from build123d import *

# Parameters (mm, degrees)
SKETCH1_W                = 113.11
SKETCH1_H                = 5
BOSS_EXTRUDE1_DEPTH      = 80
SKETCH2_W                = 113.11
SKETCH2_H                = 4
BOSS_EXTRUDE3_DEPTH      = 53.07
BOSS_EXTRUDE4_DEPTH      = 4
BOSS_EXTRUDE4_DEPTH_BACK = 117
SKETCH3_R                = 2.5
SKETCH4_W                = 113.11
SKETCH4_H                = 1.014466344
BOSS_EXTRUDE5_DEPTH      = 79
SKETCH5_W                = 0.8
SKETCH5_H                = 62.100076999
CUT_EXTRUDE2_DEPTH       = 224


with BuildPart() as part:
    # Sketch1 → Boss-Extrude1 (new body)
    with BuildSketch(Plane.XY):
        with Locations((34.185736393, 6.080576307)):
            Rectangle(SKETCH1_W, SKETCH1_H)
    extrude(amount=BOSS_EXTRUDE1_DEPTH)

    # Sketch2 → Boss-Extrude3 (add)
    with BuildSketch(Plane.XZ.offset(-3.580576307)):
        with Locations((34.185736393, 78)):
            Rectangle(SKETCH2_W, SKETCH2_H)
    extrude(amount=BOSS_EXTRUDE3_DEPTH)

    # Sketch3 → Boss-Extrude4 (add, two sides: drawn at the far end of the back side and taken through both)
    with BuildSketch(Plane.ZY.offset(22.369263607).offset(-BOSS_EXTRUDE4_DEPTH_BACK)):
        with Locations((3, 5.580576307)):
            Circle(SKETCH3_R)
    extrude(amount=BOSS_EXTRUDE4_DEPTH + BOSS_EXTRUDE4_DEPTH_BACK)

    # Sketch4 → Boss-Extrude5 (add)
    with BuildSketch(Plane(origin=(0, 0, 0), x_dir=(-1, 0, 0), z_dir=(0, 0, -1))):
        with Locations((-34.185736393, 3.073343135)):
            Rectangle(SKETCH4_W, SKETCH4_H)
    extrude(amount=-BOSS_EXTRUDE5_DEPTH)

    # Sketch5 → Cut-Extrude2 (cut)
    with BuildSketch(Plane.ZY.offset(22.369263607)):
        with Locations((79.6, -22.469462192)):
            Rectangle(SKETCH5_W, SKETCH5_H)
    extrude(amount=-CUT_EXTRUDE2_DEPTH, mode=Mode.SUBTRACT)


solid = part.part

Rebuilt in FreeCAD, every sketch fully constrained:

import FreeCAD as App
import Part
import Sketcher

V = App.Vector
Q = App.Units.Quantity


def add_polygon(sketch, points):
    """Adds a closed chain of lines whose ends are joined by coincident constraints."""
    first, n = sketch.GeometryCount, len(points)
    for a, b in zip(points, points[1:] + points[:1]):
        sketch.addGeometry(Part.LineSegment(App.Vector(*a, 0), App.Vector(*b, 0)), False)
    for i in range(n):
        sketch.addConstraint(Sketcher.Constraint("Coincident", first + i, 2, first + (i + 1) % n, 1))

doc = App.newDocument("Part")
params = doc.addObject("Spreadsheet::Sheet", "Params")
for row, (alias, value) in enumerate([
    ("sketch1_height", "5 mm"),
    ("sketch1_width", "113.11 mm"),
    ("pad1_length", "80 mm"),
    ("sketch2_height", "4 mm"),
    ("sketch2_width", "113.11 mm"),
    ("pad2_length", "53.07 mm"),
    ("sketch3_diameter", "5 mm"),
    ("pad3_length", "4 mm"),
    ("pad3_length2", "117 mm"),
    ("sketch4_width", "113.11 mm"),
    ("pad4_length", "79 mm"),
    ("sketch5_height", "0.8 mm"),
    ("pocket1_length", "224 mm"),
], start=1):
    params.set(f"A{row}", alias)
    params.set(f"B{row}", "=" + value)
    params.setAlias(f"B{row}", alias)

body = doc.addObject("PartDesign::Body", "Body")

# Sketch on XY plane
sketch1 = body.newObject("Sketcher::SketchObject", "Sketch")
sketch1.AttachmentSupport = (doc.getObject("XY_Plane"), [""])
sketch1.MapMode = "FlatFace"
add_polygon(sketch1, [(-22.369264, 8.580576), (-22.369264, 3.580576), (90.740736, 3.580576), (90.740736, 8.580576)])  # lines 0-3
sketch1.addConstraint([
    Sketcher.Constraint("Vertical", 0),
    Sketcher.Constraint("Horizontal", 1),
    Sketcher.Constraint("Vertical", 2),
    Sketcher.Constraint("Horizontal", 3),
    Sketcher.Constraint("DistanceY", 0, 2, 0, 1, Q("5 mm")),
    Sketcher.Constraint("DistanceX", 1, 1, 1, 2, Q("113.11 mm")),
    Sketcher.Constraint("DistanceX", 0, 2, -1, 1, Q("22.369264 mm")),
    Sketcher.Constraint("DistanceY", -1, 1, 0, 2, Q("3.580576 mm")),
])
sketch1.setExpression("Constraints[8]", "Params.sketch1_height")
sketch1.setExpression("Constraints[9]", "Params.sketch1_width")
pad1 = body.newObject("PartDesign::Pad", "Pad")
pad1.Profile = sketch1
pad1.setExpression("Length", "Params.pad1_length")

# Sketch on XZ plane
sketch2 = body.newObject("Sketcher::SketchObject", "Sketch001")
sketch2.AttachmentSupport = (doc.getObject("XZ_Plane"), [""])
sketch2.MapMode = "FlatFace"
sketch2.AttachmentOffset = App.Placement(V(0, 0, -3.580576), App.Rotation())
add_polygon(sketch2, [(-22.369264, 80), (-22.369264, 76), (90.740736, 76), (90.740736, 80)])  # lines 0-3
sketch2.addConstraint([
    Sketcher.Constraint("Vertical", 0),
    Sketcher.Constraint("Horizontal", 1),
    Sketcher.Constraint("Vertical", 2),
    Sketcher.Constraint("Horizontal", 3),
    Sketcher.Constraint("DistanceY", 0, 2, 0, 1, Q("4 mm")),
    Sketcher.Constraint("DistanceY", -1, 1, 0, 2, Q("76 mm")),
    Sketcher.Constraint("DistanceX", 1, 1, 1, 2, Q("113.11 mm")),
    Sketcher.Constraint("DistanceX", 0, 2, -1, 1, Q("22.369264 mm")),
])
sketch2.setExpression("Constraints[8]", "Params.sketch2_height")
sketch2.setExpression("Constraints[10]", "Params.sketch2_width")
pad2 = body.newObject("PartDesign::Pad", "Pad001")
pad2.Profile = sketch2
pad2.setExpression("Length", "Params.pad2_length")

# Sketch on YZ plane
sketch3 = body.newObject("Sketcher::SketchObject", "Sketch002")
sketch3.AttachmentSupport = (doc.getObject("YZ_Plane"), [""])
sketch3.MapMode = "FlatFace"
sketch3.AttachmentOffset = App.Placement(V(0, 0, -22.369264), App.Rotation())
sketch3.addGeometry(Part.Circle(V(5.580576, 3, 0), V(0, 0, 1), 2.5), False)
sketch3.addConstraint([
    Sketcher.Constraint("Diameter", 0, Q("5 mm")),
    Sketcher.Constraint("DistanceY", -1, 1, 0, 3, Q("3 mm")),
    Sketcher.Constraint("DistanceX", -1, 1, 0, 3, Q("5.580576 mm")),
])
sketch3.setExpression("Constraints[0]", "Params.sketch3_diameter")
pad3 = body.newObject("PartDesign::Pad", "Pad002")
pad3.Profile = sketch3
pad3.Type = "TwoLengths"
pad3.setExpression("Length", "Params.pad3_length")
pad3.setExpression("Length2", "Params.pad3_length2")
pad3.Reversed = True

# Sketch on XY plane
sketch4 = body.newObject("Sketcher::SketchObject", "Sketch003")
sketch4.AttachmentSupport = (doc.getObject("XY_Plane"), [""])
sketch4.MapMode = "FlatFace"
add_polygon(sketch4, [(90.740736, 3.580576), (90.740736, 2.56611), (-22.369264, 2.56611), (-22.369264, 3.580576)])  # lines 0-3
sketch4.addConstraint([
    Sketcher.Constraint("Vertical", 0),
    Sketcher.Constraint("Horizontal", 1),
    Sketcher.Constraint("Vertical", 2),
    Sketcher.Constraint("Horizontal", 3),
    Sketcher.Constraint("DistanceX", 1, 2, 1, 1, Q("113.11 mm")),
    Sketcher.Constraint("DistanceY", 0, 2, 0, 1, Q("1.014466 mm")),
    Sketcher.Constraint("DistanceY", -1, 1, 0, 2, Q("2.56611 mm")),
    Sketcher.Constraint("DistanceX", -1, 1, 0, 2, Q("90.740736 mm")),
])
sketch4.setExpression("Constraints[8]", "Params.sketch4_width")
pad4 = body.newObject("PartDesign::Pad", "Pad003")
pad4.Profile = sketch4
pad4.setExpression("Length", "Params.pad4_length")

# Sketch on YZ plane
sketch5 = body.newObject("Sketcher::SketchObject", "Sketch004")
sketch5.AttachmentSupport = (doc.getObject("YZ_Plane"), [""])
sketch5.MapMode = "FlatFace"
sketch5.AttachmentOffset = App.Placement(V(0, 0, -22.369264), App.Rotation())
add_polygon(sketch5, [(8.580576, 79.2), (-53.519501, 79.2), (-53.519501, 80), (8.580576, 80)])  # lines 0-3
sketch5.addConstraint([
    Sketcher.Constraint("Horizontal", 0),
    Sketcher.Constraint("Vertical", 1),
    Sketcher.Constraint("Horizontal", 2),
    Sketcher.Constraint("Vertical", 3),
    Sketcher.Constraint("DistanceY", 1, 1, 1, 2, Q("0.8 mm")),
    Sketcher.Constraint("DistanceY", -1, 1, 1, 2, Q("80 mm")),
    Sketcher.Constraint("DistanceX", 0, 2, -1, 1, Q("53.519501 mm")),
    Sketcher.Constraint("DistanceX", 0, 2, 0, 1, Q("62.100077 mm")),
])
sketch5.setExpression("Constraints[8]", "Params.sketch5_height")
pocket1 = body.newObject("PartDesign::Pocket", "Pocket")
pocket1.Profile = sketch5
pocket1.setExpression("Length", "Params.pocket1_length")
pocket1.Reversed = True

doc.recompute()
